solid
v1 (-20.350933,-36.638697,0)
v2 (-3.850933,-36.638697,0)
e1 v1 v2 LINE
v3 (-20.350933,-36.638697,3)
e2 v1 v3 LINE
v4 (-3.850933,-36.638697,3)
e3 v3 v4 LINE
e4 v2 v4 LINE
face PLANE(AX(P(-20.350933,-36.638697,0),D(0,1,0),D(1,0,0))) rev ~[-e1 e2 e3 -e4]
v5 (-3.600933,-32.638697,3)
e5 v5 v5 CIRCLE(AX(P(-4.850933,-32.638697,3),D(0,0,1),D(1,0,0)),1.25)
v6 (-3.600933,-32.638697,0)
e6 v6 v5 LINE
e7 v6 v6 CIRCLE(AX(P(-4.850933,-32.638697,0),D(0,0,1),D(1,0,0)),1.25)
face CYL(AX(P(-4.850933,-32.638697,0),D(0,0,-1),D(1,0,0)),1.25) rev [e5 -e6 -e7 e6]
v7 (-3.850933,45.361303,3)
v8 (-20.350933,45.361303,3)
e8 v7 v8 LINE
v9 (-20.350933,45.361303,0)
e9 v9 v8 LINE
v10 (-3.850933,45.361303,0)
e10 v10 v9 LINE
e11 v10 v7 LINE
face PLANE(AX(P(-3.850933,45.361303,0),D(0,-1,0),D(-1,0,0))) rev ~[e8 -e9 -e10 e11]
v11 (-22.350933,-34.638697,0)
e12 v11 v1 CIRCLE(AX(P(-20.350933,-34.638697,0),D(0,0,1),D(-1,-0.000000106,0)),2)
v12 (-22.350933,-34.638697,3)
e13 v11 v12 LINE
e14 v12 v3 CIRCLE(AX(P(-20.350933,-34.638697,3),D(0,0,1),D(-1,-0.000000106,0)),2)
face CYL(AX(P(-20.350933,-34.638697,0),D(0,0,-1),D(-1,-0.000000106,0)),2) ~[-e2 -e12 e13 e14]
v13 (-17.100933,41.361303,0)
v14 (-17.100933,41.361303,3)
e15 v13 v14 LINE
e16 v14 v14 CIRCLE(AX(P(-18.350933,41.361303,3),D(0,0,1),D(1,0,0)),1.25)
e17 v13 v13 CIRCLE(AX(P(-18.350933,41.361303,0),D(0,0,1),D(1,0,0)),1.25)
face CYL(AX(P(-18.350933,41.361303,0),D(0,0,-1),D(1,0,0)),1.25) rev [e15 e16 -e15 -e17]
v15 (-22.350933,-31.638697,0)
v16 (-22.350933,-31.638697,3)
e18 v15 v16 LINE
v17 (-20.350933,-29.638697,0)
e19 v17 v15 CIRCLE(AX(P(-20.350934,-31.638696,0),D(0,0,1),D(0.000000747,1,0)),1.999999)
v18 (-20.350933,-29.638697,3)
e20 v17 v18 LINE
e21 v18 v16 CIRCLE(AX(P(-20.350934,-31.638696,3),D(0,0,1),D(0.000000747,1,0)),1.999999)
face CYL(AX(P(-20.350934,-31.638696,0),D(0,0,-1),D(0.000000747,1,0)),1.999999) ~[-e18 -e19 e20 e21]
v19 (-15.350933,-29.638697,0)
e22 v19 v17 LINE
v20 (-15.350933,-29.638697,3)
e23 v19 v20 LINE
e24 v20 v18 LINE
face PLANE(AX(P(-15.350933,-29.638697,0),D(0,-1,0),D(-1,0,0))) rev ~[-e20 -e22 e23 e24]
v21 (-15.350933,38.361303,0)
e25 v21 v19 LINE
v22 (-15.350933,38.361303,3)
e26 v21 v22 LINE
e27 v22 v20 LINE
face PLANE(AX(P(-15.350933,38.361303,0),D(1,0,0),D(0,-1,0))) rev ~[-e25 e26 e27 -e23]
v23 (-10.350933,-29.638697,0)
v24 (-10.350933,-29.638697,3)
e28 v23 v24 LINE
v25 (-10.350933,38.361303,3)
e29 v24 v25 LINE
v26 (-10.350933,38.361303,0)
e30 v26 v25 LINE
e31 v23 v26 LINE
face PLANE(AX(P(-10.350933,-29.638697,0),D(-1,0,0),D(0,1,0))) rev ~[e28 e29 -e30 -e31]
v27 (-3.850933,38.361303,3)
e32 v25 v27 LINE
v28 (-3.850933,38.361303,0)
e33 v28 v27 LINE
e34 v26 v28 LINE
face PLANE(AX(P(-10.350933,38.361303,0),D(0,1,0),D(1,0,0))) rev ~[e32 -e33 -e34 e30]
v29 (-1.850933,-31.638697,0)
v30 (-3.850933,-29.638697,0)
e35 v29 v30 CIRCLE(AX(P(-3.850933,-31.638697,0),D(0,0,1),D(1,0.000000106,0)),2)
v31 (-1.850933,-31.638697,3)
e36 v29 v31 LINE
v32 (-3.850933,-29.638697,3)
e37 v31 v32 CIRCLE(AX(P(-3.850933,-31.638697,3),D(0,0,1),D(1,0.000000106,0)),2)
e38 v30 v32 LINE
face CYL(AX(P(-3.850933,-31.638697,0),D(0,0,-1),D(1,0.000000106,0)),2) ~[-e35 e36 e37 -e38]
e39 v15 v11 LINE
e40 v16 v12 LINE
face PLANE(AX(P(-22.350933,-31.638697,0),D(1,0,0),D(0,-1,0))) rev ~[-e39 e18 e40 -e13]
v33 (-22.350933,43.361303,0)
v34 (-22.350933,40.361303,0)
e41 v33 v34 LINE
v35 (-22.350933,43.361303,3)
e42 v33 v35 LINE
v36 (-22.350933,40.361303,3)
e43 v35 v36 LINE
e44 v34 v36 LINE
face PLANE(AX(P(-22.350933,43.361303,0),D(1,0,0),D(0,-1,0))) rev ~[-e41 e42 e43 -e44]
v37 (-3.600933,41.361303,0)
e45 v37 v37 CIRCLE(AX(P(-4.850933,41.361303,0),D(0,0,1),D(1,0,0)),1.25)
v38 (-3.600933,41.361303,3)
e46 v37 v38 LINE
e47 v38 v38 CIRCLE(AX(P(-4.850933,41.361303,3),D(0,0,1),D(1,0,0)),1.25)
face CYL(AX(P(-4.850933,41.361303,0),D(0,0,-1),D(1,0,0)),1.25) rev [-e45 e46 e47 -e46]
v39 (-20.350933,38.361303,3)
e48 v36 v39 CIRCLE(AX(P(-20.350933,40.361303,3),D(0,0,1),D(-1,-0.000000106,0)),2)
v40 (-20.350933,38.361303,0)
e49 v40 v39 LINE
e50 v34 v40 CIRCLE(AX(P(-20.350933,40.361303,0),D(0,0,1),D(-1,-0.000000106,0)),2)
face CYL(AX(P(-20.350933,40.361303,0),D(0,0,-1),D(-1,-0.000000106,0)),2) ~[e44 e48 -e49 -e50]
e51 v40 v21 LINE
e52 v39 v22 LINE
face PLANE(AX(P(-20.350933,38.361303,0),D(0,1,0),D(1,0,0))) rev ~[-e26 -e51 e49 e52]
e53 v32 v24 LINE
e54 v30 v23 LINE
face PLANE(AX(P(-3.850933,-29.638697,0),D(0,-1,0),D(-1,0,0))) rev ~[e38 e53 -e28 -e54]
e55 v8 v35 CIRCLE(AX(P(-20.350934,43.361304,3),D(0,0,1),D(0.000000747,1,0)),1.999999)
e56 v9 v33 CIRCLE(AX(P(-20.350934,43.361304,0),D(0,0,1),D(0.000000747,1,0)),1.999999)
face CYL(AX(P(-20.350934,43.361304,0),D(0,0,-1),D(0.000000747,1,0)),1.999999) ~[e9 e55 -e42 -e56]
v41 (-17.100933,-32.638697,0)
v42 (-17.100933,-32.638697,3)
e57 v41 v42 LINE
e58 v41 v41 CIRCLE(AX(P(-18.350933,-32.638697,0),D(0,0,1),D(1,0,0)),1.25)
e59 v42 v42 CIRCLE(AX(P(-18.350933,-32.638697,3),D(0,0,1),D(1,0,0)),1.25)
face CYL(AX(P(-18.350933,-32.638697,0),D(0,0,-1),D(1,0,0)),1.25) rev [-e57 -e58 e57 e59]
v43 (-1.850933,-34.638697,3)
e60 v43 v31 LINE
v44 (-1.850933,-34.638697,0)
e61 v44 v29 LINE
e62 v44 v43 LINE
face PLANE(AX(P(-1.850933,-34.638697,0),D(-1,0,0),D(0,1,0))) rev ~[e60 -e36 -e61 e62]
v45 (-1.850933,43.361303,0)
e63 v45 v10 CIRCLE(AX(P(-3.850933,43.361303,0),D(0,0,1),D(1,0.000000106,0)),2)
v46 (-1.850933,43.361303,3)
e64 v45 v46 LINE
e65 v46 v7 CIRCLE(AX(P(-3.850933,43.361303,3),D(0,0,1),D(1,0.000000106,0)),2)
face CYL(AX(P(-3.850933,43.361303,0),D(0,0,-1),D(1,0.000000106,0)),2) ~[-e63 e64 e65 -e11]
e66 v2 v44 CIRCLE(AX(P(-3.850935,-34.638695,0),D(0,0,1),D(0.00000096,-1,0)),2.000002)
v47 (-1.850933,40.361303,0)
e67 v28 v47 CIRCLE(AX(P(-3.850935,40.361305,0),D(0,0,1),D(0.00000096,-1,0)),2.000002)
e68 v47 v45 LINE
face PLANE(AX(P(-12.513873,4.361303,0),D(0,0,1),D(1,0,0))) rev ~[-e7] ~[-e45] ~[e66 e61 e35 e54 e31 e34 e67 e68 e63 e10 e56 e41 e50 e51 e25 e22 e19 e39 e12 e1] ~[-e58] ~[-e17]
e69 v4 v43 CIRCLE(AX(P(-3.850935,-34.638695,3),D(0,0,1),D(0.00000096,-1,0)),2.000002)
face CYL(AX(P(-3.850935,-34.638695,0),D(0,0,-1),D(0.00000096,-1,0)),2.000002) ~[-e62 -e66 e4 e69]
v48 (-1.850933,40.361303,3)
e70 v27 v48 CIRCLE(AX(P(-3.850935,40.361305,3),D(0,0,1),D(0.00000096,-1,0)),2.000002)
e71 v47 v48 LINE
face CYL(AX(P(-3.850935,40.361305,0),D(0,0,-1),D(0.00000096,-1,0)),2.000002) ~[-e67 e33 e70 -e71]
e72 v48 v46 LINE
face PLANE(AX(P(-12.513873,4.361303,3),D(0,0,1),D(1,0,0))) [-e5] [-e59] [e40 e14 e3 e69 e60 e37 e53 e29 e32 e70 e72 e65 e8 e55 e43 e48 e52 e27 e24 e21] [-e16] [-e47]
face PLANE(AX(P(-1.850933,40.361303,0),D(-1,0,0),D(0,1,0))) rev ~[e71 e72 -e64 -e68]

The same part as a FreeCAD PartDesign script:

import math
import FreeCAD as App
import Part
import Sketcher
from FreeCAD import Vector
Q = App.Units.Quantity

doc = App.newDocument("Part")
body = doc.addObject("PartDesign::Body", "Body")

sketch1 = body.newObject("Sketcher::SketchObject", "Sketch")
sketch1.AttachmentSupport = (doc.getObject("XY_Plane"), [""])
sketch1.MapMode = "FlatFace"
sketch1.addGeometry([
    Part.LineSegment(Vector(-3.9, 45.4, 0), Vector(-20.4, 45.4, 0)),
    Part.ArcOfCircle(Part.Circle(Vector(-20.4, 43.4, 0), Vector(0, 0, 1), 2), math.radians(90), math.radians(180)),
    Part.LineSegment(Vector(-22.4, 43.4, 0), Vector(-22.4, 40.4, 0)),
    Part.ArcOfCircle(Part.Circle(Vector(-20.4, 40.4, 0), Vector(0, 0, 1), 2), math.radians(-180), math.radians(-90)),
    Part.LineSegment(Vector(-20.4, 38.4, 0), Vector(-15.4, 38.4, 0)),
    Part.LineSegment(Vector(-15.4, 38.4, 0), Vector(-15.4, -29.6, 0)),
    Part.LineSegment(Vector(-15.4, -29.6, 0), Vector(-20.4, -29.6, 0)),
    Part.ArcOfCircle(Part.Circle(Vector(-20.4, -31.6, 0), Vector(0, 0, 1), 2), math.radians(90), math.radians(180)),
    Part.LineSegment(Vector(-22.4, -31.6, 0), Vector(-22.4, -34.6, 0)),
    Part.ArcOfCircle(Part.Circle(Vector(-20.4, -34.6, 0), Vector(0, 0, 1), 2), math.radians(-180), math.radians(-90)),
    Part.LineSegment(Vector(-20.4, -36.6, 0), Vector(-3.9, -36.6, 0)),
    Part.ArcOfCircle(Part.Circle(Vector(-3.9, -34.6, 0), Vector(0, 0, 1), 2), math.radians(-90), math.radians(0)),
    Part.LineSegment(Vector(-1.9, -34.6, 0), Vector(-1.9, -31.6, 0)),
    Part.ArcOfCircle(Part.Circle(Vector(-3.9, -31.6, 0), Vector(0, 0, 1), 2), math.radians(0), math.radians(90)),
    Part.LineSegment(Vector(-3.9, -29.6, 0), Vector(-10.4, -29.6, 0)),
    Part.LineSegment(Vector(-10.4, -29.6, 0), Vector(-10.4, 38.4, 0)),
    Part.LineSegment(Vector(-10.4, 38.4, 0), Vector(-3.9, 38.4, 0)),
    Part.ArcOfCircle(Part.Circle(Vector(-3.9, 40.4, 0), Vector(0, 0, 1), 2), math.radians(-90), math.radians(0)),
    Part.LineSegment(Vector(-1.9, 40.4, 0), Vector(-1.9, 43.4, 0)),
    Part.ArcOfCircle(Part.Circle(Vector(-3.9, 43.4, 0), Vector(0, 0, 1), 2), math.radians(0), math.radians(90)),
    Part.Circle(Vector(-18.4, -32.6, 0), Vector(0, 0, 1), 1.2),
    Part.Circle(Vector(-4.9, -32.6, 0), Vector(0, 0, 1), 1.2),
    Part.Circle(Vector(-18.4, 41.4, 0), Vector(0, 0, 1), 1.2),
    Part.Circle(Vector(-4.9, 41.4, 0), Vector(0, 0, 1), 1.2),
], False)
sketch1.addConstraint([
    Sketcher.Constraint("Tangent", 0, 2, 1, 1),
    Sketcher.Constraint("Tangent", 1, 2, 2, 1),
    Sketcher.Constraint("Tangent", 2, 2, 3, 1),
    Sketcher.Constraint("Tangent", 3, 2, 4, 1),
    Sketcher.Constraint("Coincident", 4, 2, 5, 1),
    Sketcher.Constraint("Coincident", 5, 2, 6, 1),
    Sketcher.Constraint("Tangent", 6, 2, 7, 1),
    Sketcher.Constraint("Tangent", 7, 2, 8, 1),
    Sketcher.Constraint("Tangent", 8, 2, 9, 1),
    Sketcher.Constraint("Tangent", 9, 2, 10, 1),
    Sketcher.Constraint("Tangent", 10, 2, 11, 1),
    Sketcher.Constraint("Tangent", 11, 2, 12, 1),
    Sketcher.Constraint("Tangent", 12, 2, 13, 1),
    Sketcher.Constraint("Tangent", 13, 2, 14, 1),
    Sketcher.Constraint("Coincident", 14, 2, 15, 1),
    Sketcher.Constraint("Coincident", 15, 2, 16, 1),
    Sketcher.Constraint("Tangent", 16, 2, 17, 1),
    Sketcher.Constraint("Tangent", 17, 2, 18, 1),
    Sketcher.Constraint("Tangent", 18, 2, 19, 1),
    Sketcher.Constraint("Tangent", 19, 2, 0, 1),
    Sketcher.Constraint("Horizontal", 0),
    Sketcher.Constraint("Vertical", 2),
    Sketcher.Constraint("Horizontal", 4),
    Sketcher.Constraint("Vertical", 5),
    Sketcher.Constraint("Horizontal", 6),
    Sketcher.Constraint("Vertical", 8),
    Sketcher.Constraint("Horizontal", 10),
    Sketcher.Constraint("Vertical", 12),
    Sketcher.Constraint("Horizontal", 14),
    Sketcher.Constraint("Vertical", 15),
    Sketcher.Constraint("Horizontal", 16),
    Sketcher.Constraint("Vertical", 18),
    Sketcher.Constraint("Equal", 1, 3),
    Sketcher.Constraint("Equal", 3, 7),
    Sketcher.Constraint("Equal", 7, 9),
    Sketcher.Constraint("Equal", 9, 11),
    Sketcher.Constraint("Equal", 11, 13),
    Sketcher.Constraint("Equal", 13, 17),
    Sketcher.Constraint("Equal", 17, 19),
    Sketcher.Constraint("Equal", 20, 21),
    Sketcher.Constraint("Equal", 21, 22),
    Sketcher.Constraint("Equal", 22, 23),
    Sketcher.Constraint("Horizontal", 7, 3, 13, 3),
    Sketcher.Constraint("Horizontal", 3, 3, 17, 3),
    Sketcher.Constraint("Horizontal", 20, 3, 21, 3),
    Sketcher.Constraint("Horizontal", 22, 3, 23, 3),
    Sketcher.Constraint("Vertical", 3, 3, 7, 3),
    Sketcher.Constraint("Vertical", 13, 3, 17, 3),
    Sketcher.Constraint("Vertical", 20, 3, 22, 3),
    Sketcher.Constraint("Vertical", 21, 3, 23, 3),
    Sketcher.Constraint("Equal", 2, 8),
    Sketcher.Constraint("Radius", 1, Q("1.999999 mm")),
    Sketcher.Constraint("Diameter", 20, Q("2.5 mm")),
    Sketcher.Constraint("DistanceX", 4, 1, 4, 2, Q("5 mm")),
    Sketcher.Constraint("DistanceY", 2, 2, 2, 1, Q("3 mm")),
    Sketcher.Constraint("DistanceY", 5, 2, 5, 1, Q("68 mm")),
    Sketcher.Constraint("DistanceX", 0, 2, 0, 1, Q("16.5 mm")),
    Sketcher.Constraint("DistanceX", 14, 2, 14, 1, Q("6.5 mm")),
    Sketcher.Constraint("DistanceX", 7, 3, 20, 3, Q("2.000001 mm")),
    Sketcher.Constraint("DistanceY", 20, 3, 7, 3, Q("1.000001 mm")),
    Sketcher.Constraint("DistanceX", 21, 3, 13, 3, Q("1 mm")),
    Sketcher.Constraint("DistanceY", 3, 3, 22, 3, Q("1 mm")),
    Sketcher.Constraint("DistanceX", 1, 3, -1, 1, Q("20.350934 mm")),
    Sketcher.Constraint("DistanceY", -1, 1, 1, 3, Q("43.361304 mm")),
])
pad1 = body.newObject("PartDesign::Pad", "Pad")
pad1.Profile = sketch1
pad1.Length = 3

doc.recompute()
